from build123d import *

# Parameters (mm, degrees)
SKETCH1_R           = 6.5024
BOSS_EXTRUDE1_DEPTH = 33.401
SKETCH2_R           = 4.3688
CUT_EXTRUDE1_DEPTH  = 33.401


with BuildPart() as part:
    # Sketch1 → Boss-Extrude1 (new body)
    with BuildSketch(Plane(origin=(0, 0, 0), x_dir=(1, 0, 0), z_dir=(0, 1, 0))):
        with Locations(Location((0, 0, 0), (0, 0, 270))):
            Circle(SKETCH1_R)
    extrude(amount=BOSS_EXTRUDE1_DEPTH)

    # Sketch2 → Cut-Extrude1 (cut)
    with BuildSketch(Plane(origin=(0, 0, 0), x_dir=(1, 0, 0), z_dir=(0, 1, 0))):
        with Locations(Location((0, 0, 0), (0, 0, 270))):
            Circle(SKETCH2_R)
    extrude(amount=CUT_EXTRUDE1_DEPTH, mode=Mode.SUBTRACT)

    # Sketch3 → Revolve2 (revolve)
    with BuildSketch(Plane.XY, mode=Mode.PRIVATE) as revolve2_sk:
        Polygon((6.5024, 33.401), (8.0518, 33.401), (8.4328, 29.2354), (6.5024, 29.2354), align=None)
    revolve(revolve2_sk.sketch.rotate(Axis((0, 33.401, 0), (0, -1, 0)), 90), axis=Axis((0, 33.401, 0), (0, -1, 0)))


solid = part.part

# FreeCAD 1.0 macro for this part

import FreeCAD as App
import Part
import Sketcher

V = App.Vector
Q = App.Units.Quantity

doc = App.newDocument("Part")
body = doc.addObject("PartDesign::Body", "Body")

# Sketch on XZ plane
sketch1 = body.newObject("Sketcher::SketchObject", "Sketch")
sketch1.AttachmentSupport = (doc.getObject("XZ_Plane"), [""])
sketch1.MapMode = "FlatFace"
sketch1.addGeometry(Part.Circle(V(0, 0, 0), V(0, 0, 1), 7), False)
sketch1.addConstraint([
    Sketcher.Constraint("Coincident", 0, 3, -1, 1),
    Sketcher.Constraint("Diameter", 0, Q("0.512 in")),
])
pad1 = body.newObject("PartDesign::Pad", "Pad")
pad1.Profile = sketch1
pad1.Length = Q("1.315 in")
pad1.Reversed = True

# Sketch on XZ plane
sketch2 = body.newObject("Sketcher::SketchObject", "Sketch001")
sketch2.AttachmentSupport = (doc.getObject("XZ_Plane"), [""])
sketch2.MapMode = "FlatFace"
sketch2.addGeometry(Part.Circle(V(0, 0, 0), V(0, 0, 1), 4.4), False)
sketch2.addConstraint([
    Sketcher.Constraint("Coincident", 0, 3, -1, 1),
    Sketcher.Constraint("Diameter", 0, Q("0.344 in")),
])
pocket1 = body.newObject("PartDesign::Pocket", "Pocket")
pocket1.Profile = sketch2
pocket1.Length = Q("1.315 in")

# Sketch on XY plane
sketch3 = body.newObject("Sketcher::SketchObject", "Sketch002")
sketch3.AttachmentSupport = (doc.getObject("XY_Plane"), [""])
sketch3.MapMode = "FlatFace"
sketch3.addGeometry([
    Part.LineSegment(V(8.1, 33.4, 0), V(6.5, 33.4, 0)),
    Part.LineSegment(V(6.5, 33.4, 0), V(6.5, 29.2, 0)),
    Part.LineSegment(V(6.5, 29.2, 0), V(8.4, 29.2, 0)),
    Part.LineSegment(V(8.4, 29.2, 0), V(8.1, 33.4, 0)),
], False)
sketch3.addConstraint([
    Sketcher.Constraint("Coincident", 0, 2, 1, 1),
    Sketcher.Constraint("Coincident", 1, 2, 2, 1),
    Sketcher.Constraint("Coincident", 2, 2, 3, 1),
    Sketcher.Constraint("Coincident", 3, 2, 0, 1),
    Sketcher.Constraint("Horizontal", 0),
    Sketcher.Constraint("Vertical", 1),
    Sketcher.Constraint("Horizontal", 2),
    Sketcher.Constraint("DistanceX", 0, 2, 0, 1, Q("0.061 in")),
    Sketcher.Constraint("DistanceX", 2, 1, 2, 2, Q("0.076 in")),
    Sketcher.Constraint("DistanceY", 1, 2, 1, 1, Q("0.164 in")),
    Sketcher.Constraint("DistanceX", -1, 1, 0, 2, Q("0.256 in")),
    Sketcher.Constraint("DistanceY", -1, 1, 0, 2, Q("1.315 in")),
])
revolution = body.newObject("PartDesign::Revolution", "Revolution")
revolution.Profile = sketch3
revolution.ReferenceAxis = (sketch3, ["V_Axis"])
revolution.Angle = 360

doc.recompute()
